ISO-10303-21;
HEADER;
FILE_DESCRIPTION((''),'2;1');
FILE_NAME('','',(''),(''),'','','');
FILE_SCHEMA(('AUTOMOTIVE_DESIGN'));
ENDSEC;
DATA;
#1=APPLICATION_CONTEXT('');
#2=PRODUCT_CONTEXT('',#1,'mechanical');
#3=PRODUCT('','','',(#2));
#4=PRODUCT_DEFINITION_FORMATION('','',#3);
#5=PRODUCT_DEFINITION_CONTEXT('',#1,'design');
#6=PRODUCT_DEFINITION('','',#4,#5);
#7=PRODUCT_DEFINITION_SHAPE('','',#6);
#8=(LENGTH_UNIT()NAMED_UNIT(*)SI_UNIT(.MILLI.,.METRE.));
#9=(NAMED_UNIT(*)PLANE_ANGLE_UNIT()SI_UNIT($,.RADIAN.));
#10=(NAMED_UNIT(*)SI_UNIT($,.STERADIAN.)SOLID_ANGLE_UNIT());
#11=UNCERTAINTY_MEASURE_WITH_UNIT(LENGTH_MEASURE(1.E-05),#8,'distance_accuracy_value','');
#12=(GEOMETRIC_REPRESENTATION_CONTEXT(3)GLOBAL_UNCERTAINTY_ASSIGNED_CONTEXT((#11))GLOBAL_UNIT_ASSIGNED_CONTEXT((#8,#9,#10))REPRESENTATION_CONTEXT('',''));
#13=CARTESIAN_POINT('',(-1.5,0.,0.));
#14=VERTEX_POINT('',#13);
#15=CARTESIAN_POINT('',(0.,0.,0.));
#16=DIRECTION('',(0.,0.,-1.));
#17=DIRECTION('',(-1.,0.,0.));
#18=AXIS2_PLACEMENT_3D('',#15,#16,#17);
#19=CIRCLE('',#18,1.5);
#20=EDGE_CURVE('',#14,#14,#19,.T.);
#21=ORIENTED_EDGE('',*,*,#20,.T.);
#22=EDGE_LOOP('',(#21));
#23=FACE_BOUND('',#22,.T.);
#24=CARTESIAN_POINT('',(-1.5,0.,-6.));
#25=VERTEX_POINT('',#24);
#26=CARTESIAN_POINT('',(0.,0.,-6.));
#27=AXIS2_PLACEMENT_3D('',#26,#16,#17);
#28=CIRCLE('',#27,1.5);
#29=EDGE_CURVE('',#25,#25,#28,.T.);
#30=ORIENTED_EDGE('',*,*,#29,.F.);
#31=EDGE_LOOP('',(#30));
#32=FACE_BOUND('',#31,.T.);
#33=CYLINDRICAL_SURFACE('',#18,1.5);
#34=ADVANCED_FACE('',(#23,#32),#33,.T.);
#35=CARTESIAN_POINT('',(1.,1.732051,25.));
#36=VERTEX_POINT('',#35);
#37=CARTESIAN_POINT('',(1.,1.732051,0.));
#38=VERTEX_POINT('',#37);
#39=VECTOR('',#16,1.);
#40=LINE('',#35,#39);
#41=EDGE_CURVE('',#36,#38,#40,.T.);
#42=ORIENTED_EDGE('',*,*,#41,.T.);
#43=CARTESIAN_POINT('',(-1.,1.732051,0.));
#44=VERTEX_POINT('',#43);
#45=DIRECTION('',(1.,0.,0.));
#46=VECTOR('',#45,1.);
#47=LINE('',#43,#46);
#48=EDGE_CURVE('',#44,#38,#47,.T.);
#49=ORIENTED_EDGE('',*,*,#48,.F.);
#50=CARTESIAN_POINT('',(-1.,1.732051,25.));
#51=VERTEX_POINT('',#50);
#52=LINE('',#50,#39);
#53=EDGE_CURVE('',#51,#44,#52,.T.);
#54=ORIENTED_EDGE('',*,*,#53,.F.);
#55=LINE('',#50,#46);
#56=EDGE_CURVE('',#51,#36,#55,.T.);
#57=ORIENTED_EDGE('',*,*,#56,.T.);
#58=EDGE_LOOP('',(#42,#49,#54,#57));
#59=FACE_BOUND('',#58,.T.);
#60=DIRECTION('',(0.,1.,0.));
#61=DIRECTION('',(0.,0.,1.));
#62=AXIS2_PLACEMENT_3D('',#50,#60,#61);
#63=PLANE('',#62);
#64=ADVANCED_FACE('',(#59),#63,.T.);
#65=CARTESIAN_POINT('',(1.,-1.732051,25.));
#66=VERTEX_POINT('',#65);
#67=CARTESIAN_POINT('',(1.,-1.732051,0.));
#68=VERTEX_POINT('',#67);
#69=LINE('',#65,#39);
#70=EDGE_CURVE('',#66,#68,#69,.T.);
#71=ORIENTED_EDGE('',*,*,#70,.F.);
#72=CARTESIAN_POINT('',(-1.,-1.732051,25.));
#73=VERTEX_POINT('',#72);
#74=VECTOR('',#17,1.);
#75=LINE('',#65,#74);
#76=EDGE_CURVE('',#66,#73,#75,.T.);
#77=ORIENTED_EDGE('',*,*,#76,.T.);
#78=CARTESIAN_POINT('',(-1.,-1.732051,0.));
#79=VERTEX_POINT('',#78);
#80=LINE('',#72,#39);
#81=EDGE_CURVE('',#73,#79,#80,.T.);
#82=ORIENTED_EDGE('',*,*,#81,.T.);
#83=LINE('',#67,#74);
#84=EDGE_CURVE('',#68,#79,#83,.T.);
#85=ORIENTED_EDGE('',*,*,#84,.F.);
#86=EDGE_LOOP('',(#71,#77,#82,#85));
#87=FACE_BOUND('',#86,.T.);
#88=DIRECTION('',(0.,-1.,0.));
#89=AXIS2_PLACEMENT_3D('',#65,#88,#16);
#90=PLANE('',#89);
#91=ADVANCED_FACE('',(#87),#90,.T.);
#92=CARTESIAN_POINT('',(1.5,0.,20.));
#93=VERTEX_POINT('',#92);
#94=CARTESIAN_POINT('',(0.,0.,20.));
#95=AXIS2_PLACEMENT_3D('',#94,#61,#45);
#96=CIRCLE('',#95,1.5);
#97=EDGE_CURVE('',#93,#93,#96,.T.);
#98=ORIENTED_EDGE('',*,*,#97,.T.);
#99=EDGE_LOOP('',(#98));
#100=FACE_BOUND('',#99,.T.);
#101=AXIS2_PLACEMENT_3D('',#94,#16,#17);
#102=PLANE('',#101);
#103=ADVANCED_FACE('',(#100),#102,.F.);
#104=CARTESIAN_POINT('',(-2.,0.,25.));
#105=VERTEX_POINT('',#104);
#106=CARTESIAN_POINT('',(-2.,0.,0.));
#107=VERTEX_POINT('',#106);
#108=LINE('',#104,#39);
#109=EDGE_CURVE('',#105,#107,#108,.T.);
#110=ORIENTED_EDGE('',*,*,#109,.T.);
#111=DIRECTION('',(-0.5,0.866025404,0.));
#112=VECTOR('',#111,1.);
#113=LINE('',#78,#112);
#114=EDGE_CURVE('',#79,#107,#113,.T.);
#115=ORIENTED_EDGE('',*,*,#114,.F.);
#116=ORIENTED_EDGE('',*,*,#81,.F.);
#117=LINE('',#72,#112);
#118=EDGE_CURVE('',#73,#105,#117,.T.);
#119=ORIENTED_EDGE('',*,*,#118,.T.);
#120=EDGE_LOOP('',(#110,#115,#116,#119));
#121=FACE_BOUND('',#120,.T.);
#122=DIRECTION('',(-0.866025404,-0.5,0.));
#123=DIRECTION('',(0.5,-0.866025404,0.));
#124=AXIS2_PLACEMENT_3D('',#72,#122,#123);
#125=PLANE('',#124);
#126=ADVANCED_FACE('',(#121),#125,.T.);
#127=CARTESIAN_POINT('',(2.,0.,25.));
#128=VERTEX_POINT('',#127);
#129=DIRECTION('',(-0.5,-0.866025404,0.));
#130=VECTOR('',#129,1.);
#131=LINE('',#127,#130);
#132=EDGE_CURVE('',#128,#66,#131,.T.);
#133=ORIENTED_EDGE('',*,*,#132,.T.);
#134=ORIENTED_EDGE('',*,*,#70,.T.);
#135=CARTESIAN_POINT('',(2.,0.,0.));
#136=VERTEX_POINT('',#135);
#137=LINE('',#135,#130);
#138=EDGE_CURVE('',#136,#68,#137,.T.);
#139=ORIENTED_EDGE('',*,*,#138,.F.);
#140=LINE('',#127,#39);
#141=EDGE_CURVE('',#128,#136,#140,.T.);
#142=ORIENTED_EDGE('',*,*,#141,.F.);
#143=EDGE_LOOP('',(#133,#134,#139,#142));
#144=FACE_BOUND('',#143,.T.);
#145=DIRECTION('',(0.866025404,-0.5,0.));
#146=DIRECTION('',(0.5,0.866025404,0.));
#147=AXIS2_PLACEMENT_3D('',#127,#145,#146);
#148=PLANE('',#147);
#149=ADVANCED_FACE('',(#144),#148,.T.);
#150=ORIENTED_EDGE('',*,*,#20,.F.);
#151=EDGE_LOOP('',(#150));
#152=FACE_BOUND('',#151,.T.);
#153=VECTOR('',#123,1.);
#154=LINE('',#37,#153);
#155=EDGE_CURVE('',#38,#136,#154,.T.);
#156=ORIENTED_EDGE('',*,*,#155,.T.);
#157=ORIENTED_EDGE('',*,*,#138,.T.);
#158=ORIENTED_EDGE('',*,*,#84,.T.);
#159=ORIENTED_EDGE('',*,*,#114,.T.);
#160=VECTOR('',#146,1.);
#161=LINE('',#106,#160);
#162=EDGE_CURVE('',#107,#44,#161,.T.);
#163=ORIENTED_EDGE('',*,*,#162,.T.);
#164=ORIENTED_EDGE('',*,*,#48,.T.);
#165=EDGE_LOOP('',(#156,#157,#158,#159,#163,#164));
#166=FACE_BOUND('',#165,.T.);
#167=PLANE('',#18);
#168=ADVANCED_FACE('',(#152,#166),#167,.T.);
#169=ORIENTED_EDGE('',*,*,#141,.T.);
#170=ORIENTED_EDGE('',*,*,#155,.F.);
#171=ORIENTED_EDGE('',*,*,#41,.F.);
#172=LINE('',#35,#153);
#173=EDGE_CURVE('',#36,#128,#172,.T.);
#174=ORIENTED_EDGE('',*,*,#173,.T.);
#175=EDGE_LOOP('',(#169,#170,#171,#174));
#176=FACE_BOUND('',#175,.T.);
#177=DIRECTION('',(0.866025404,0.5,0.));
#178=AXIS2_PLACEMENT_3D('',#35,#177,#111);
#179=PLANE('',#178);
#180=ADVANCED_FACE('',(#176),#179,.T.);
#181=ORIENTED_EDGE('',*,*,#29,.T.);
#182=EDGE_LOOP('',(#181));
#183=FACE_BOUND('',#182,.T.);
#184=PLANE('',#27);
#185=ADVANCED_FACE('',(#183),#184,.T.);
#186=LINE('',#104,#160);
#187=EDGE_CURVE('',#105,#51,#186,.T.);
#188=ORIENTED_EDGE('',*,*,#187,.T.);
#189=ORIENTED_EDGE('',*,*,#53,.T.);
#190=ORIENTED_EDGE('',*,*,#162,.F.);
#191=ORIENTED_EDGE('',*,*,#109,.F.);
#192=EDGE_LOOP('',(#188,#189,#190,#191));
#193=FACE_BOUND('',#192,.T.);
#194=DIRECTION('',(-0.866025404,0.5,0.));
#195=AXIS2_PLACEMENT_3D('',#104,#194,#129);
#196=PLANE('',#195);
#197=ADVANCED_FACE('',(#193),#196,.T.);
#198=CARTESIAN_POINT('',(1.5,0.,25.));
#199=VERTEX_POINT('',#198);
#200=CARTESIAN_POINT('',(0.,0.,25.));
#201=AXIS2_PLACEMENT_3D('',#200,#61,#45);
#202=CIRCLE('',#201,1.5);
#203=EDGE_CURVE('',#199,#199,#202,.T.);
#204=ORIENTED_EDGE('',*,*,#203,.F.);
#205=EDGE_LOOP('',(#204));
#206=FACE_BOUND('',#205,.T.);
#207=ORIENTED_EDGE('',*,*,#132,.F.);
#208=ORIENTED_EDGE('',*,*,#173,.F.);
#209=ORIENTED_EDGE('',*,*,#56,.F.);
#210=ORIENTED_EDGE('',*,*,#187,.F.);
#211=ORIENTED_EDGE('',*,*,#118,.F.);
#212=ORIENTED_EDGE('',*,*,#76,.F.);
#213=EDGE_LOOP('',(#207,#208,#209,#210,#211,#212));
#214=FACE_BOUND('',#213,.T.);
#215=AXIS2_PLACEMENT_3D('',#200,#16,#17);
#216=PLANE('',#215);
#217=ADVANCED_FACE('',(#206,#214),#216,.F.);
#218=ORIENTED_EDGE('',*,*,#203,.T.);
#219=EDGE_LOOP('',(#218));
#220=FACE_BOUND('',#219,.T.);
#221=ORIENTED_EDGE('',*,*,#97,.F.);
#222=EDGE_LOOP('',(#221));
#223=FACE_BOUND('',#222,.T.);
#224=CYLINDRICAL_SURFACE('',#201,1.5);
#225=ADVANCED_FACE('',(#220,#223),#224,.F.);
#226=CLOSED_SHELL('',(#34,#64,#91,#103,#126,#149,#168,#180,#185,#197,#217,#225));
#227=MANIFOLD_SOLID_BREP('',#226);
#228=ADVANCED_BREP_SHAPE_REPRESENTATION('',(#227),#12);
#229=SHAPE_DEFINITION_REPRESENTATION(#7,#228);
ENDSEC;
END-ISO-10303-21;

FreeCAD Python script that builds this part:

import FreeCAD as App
import Part
import Sketcher
from FreeCAD import Vector
Q = App.Units.Quantity

doc = App.newDocument("Part")
body = doc.addObject("PartDesign::Body", "Body")

# Sketch on XY plane
sketch1 = body.newObject("Sketcher::SketchObject", "Sketch")
sketch1.AttachmentSupport = (doc.getObject("XY_Plane"), [""])
sketch1.MapMode = "FlatFace"
sketch1.addGeometry(Part.LineSegment(Vector(-1, -1.7, 0), Vector(-2, 0, 0)), False)
sketch1.addGeometry(Part.LineSegment(Vector(-2, 0, 0), Vector(-1, 1.7, 0)), False)
sketch1.addGeometry(Part.LineSegment(Vector(-1, 1.7, 0), Vector(1, 1.7, 0)), False)
sketch1.addGeometry(Part.LineSegment(Vector(1, 1.7, 0), Vector(2, 0, 0)), False)
sketch1.addGeometry(Part.LineSegment(Vector(2, 0, 0), Vector(1, -1.7, 0)), False)
sketch1.addGeometry(Part.LineSegment(Vector(1, -1.7, 0), Vector(-1, -1.7, 0)), False)
sketch1.addConstraint(Sketcher.Constraint("Coincident", 0, 2, 1, 1))
sketch1.addConstraint(Sketcher.Constraint("Coincident", 1, 2, 2, 1))
sketch1.addConstraint(Sketcher.Constraint("Coincident", 2, 2, 3, 1))
sketch1.addConstraint(Sketcher.Constraint("Coincident", 3, 2, 4, 1))
sketch1.addConstraint(Sketcher.Constraint("Coincident", 4, 2, 5, 1))
sketch1.addConstraint(Sketcher.Constraint("Coincident", 5, 2, 0, 1))
sketch1.addConstraint(Sketcher.Constraint("Horizontal", 2))
sketch1.addConstraint(Sketcher.Constraint("Horizontal", 5))
sketch1.addConstraint(Sketcher.Constraint("Symmetric", 0, 2, 3, 2, -1, 1))
sketch1.addConstraint(Sketcher.Constraint("Symmetric", 1, 2, 4, 2, -1, 1))
sketch1.addConstraint(Sketcher.Constraint("PointOnObject", 0, 2, -1))
sketch1.addConstraint(Sketcher.Constraint("Parallel", 0, 3))
sketch1.addConstraint(Sketcher.Constraint("Vertical", 2, 2, 4, 2))
sketch1.addConstraint(Sketcher.Constraint("DistanceX", 2, 1, 2, 2, 2.0))
sketch1.addConstraint(Sketcher.Constraint("Angle", 0, Q("120 deg")))
sketch1.addConstraint(Sketcher.Constraint("Distance", 0, 2.0))
pad1 = body.newObject("PartDesign::Pad", "Pad")
pad1.Profile = sketch1
pad1.Length = 25

# Sketch on XZ plane
sketch2 = body.newObject("Sketcher::SketchObject", "Sketch001")
sketch2.AttachmentSupport = (doc.getObject("XZ_Plane"), [""])
sketch2.MapMode = "FlatFace"
sketch2.addGeometry(Part.LineSegment(Vector(0, 0, 0), Vector(0, -6, 0)), False)
sketch2.addGeometry(Part.LineSegment(Vector(0, -6, 0), Vector(1.5, -6, 0)), False)
sketch2.addGeometry(Part.LineSegment(Vector(1.5, -6, 0), Vector(1.5, 0, 0)), False)
sketch2.addGeometry(Part.LineSegment(Vector(1.5, 0, 0), Vector(0, 0, 0)), False)
sketch2.addConstraint(Sketcher.Constraint("Coincident", 0, 2, 1, 1))
sketch2.addConstraint(Sketcher.Constraint("Coincident", 1, 2, 2, 1))
sketch2.addConstraint(Sketcher.Constraint("Coincident", 2, 2, 3, 1))
sketch2.addConstraint(Sketcher.Constraint("Coincident", 3, 2, 0, 1))
sketch2.addConstraint(Sketcher.Constraint("Vertical", 0))
sketch2.addConstraint(Sketcher.Constraint("Horizontal", 1))
sketch2.addConstraint(Sketcher.Constraint("Vertical", 2))
sketch2.addConstraint(Sketcher.Constraint("Horizontal", 3))
sketch2.addConstraint(Sketcher.Constraint("Coincident", 3, 2, -1, 1))
sketch2.addConstraint(Sketcher.Constraint("DistanceY", 0, 2, 0, 1, 6.0))
sketch2.addConstraint(Sketcher.Constraint("DistanceX", 1, 1, 1, 2, 1.5))
revolution = body.newObject("PartDesign::Revolution", "Revolution")
revolution.Profile = sketch2
revolution.ReferenceAxis = (sketch2, ["V_Axis"])
revolution.Angle = 360

# Sketch on XY plane
sketch3 = body.newObject("Sketcher::SketchObject", "Sketch002")
sketch3.AttachmentSupport = (doc.getObject("XY_Plane"), [""])
sketch3.MapMode = "FlatFace"
sketch3.AttachmentOffset = App.Placement(Vector(0, 0, 25), App.Rotation())
sketch3.addGeometry(Part.Circle(Vector(0, 0, 0), Vector(0, 0, 1), 1.5), False)
sketch3.addConstraint(Sketcher.Constraint("Coincident", 0, 3, -1, 1))
sketch3.addConstraint(Sketcher.Constraint("Diameter", 0, 3.0))
doc.recompute()
hole = body.newObject("PartDesign::Hole", "Hole")
hole.Profile = sketch3
hole.ThreadType = "None"
hole.Diameter = 3
hole.DepthType = "Dimension"
hole.Depth = 5
hole.DrillPoint = "Flat"

doc.recompute()
